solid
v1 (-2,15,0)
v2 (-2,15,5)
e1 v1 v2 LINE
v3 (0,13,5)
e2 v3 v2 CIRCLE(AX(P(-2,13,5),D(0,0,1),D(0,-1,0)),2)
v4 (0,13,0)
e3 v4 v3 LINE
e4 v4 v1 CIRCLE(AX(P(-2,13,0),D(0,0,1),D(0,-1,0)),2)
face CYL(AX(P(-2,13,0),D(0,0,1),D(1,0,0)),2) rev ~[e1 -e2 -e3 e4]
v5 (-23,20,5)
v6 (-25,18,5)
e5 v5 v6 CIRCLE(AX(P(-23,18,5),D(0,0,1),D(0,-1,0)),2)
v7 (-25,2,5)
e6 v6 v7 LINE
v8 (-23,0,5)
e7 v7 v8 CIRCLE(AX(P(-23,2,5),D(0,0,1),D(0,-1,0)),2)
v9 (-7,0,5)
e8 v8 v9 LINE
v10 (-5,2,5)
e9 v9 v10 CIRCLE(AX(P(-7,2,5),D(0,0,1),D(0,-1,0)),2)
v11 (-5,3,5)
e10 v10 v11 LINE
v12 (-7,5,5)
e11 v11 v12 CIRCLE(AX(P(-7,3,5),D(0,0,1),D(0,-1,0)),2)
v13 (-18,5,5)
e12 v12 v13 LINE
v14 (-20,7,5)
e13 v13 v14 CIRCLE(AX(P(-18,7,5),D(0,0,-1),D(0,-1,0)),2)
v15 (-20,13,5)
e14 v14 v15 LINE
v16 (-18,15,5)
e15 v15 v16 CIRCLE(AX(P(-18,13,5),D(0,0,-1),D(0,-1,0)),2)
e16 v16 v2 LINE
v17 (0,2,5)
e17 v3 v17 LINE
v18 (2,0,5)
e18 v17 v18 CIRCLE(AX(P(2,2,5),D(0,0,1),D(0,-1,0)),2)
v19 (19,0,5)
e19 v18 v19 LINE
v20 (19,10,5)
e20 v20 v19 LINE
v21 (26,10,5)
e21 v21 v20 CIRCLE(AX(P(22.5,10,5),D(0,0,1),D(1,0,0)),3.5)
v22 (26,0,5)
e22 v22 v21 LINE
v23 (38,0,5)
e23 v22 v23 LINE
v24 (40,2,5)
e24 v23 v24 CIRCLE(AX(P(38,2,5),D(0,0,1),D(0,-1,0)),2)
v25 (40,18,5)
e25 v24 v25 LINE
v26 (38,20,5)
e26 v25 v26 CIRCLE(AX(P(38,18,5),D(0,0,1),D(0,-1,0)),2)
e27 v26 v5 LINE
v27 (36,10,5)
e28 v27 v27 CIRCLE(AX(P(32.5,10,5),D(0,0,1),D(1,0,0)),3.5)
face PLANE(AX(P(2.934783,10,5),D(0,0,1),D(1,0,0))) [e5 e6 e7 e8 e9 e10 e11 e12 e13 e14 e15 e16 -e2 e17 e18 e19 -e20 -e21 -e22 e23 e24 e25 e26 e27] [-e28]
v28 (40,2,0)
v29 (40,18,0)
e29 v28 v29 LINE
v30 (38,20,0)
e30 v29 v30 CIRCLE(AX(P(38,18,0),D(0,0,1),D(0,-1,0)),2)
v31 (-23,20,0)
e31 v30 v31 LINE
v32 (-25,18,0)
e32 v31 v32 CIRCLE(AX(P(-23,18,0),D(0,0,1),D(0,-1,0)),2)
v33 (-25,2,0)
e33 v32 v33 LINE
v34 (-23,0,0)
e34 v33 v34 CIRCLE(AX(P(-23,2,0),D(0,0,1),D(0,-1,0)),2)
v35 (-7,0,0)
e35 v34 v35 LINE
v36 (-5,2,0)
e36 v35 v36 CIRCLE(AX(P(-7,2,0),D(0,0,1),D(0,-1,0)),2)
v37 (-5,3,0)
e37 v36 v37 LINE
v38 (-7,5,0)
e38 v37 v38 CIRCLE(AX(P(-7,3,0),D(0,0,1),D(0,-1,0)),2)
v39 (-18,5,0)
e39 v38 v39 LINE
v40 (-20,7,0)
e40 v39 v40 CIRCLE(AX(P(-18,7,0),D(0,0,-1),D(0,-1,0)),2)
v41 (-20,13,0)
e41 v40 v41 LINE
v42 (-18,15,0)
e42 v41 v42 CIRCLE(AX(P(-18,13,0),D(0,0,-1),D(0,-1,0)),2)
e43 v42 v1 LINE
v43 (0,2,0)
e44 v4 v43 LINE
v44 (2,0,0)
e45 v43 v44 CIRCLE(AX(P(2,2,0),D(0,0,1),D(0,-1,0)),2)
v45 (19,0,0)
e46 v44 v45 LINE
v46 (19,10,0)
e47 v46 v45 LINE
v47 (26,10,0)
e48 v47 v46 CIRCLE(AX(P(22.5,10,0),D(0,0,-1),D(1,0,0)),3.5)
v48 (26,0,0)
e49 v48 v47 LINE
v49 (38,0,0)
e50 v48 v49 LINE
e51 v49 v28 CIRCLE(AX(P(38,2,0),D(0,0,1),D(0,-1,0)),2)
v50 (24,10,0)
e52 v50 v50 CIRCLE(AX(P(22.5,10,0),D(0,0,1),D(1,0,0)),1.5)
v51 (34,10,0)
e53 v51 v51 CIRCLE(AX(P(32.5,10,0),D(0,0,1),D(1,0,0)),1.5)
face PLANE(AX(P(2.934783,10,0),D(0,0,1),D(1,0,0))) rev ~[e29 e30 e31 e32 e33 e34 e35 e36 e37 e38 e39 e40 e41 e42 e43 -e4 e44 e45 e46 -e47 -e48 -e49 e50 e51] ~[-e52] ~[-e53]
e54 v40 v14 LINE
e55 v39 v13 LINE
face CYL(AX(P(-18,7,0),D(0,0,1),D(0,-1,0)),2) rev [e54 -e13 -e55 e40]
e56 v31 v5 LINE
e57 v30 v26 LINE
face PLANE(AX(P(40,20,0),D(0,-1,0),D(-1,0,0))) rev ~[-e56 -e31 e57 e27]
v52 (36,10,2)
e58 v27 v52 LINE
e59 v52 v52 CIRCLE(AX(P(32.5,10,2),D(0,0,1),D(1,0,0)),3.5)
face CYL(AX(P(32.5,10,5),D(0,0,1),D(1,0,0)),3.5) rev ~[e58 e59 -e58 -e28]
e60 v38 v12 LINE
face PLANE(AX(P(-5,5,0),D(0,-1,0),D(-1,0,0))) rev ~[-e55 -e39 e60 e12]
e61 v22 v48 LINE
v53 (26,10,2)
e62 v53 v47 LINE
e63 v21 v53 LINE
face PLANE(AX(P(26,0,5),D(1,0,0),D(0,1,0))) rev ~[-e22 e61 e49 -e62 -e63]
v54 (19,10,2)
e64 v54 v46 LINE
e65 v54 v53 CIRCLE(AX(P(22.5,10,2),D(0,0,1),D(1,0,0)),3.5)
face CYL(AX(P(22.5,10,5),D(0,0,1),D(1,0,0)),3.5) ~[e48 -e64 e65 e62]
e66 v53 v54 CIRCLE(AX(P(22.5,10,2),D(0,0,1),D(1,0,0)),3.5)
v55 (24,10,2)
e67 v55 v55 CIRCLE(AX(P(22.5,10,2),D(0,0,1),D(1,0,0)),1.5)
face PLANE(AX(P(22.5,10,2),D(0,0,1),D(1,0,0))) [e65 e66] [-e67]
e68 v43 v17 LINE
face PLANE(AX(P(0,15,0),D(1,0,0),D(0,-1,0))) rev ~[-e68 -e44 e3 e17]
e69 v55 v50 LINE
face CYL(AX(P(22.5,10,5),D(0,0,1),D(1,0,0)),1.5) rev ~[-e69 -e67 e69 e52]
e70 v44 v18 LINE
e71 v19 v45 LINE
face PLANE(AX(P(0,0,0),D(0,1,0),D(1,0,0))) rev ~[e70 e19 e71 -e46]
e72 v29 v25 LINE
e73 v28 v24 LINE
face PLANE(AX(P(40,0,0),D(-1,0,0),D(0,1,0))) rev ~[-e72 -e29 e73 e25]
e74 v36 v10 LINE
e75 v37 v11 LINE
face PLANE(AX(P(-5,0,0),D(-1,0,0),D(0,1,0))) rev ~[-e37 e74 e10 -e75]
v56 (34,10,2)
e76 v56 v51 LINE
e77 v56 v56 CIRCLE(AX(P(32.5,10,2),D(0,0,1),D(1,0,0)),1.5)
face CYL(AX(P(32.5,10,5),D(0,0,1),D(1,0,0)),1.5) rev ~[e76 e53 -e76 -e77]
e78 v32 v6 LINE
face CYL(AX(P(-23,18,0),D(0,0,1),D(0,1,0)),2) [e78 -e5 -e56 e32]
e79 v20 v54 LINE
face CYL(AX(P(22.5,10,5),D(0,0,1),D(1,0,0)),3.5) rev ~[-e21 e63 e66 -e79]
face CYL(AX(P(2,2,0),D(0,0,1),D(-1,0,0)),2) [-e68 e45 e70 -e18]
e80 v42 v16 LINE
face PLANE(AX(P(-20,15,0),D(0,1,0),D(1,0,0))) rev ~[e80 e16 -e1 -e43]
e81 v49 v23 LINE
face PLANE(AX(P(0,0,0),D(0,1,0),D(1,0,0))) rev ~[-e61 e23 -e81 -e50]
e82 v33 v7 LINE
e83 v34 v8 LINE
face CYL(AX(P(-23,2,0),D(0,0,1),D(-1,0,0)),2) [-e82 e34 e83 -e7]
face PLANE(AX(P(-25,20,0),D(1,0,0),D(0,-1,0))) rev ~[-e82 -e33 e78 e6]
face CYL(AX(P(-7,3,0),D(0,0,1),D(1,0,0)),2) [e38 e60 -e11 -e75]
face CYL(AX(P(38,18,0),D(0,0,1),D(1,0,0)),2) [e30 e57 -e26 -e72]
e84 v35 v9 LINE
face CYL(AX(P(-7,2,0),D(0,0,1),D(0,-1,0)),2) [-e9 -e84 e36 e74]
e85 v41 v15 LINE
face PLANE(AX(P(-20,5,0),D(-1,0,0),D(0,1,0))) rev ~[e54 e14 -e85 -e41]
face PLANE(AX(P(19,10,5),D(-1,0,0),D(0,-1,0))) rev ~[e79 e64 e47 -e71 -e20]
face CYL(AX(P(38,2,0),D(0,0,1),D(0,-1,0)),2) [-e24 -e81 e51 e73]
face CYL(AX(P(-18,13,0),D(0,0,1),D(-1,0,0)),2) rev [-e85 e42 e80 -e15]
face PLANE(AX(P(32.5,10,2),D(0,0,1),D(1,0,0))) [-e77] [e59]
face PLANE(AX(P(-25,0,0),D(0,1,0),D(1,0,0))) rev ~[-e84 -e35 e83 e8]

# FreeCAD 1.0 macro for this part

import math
import FreeCAD as App
import Part
import Sketcher
Q = App.Units.Quantity


def edges_at(feature, points):
    """Names of the edges that pass closest to the given points."""
    edges = feature.Shape.Edges
    near = lambda p: min(range(len(edges)), key=lambda i: edges[i].distToShape(Part.Vertex(*p))[0])
    return sorted({f"Edge{near(p) + 1}" for p in points})


def add_polygon(sketch, points):
    """Adds a closed chain of lines whose ends are joined by coincident constraints."""
    first, n = sketch.GeometryCount, len(points)
    for a, b in zip(points, points[1:] + points[:1]):
        sketch.addGeometry(Part.LineSegment(App.Vector(*a, 0), App.Vector(*b, 0)), False)
    for i in range(n):
        sketch.addConstraint(Sketcher.Constraint("Coincident", first + i, 2, first + (i + 1) % n, 1))

doc = App.newDocument("Part")
params = doc.addObject("Spreadsheet::Sheet", "Params")
for row, (alias, value) in enumerate([
    ("sketch1_width", "40 mm"),
    ("sketch1_width2", "65 mm"),
    ("sketch1_width3", "20 mm"),
    ("sketch1_height", "5 mm"),
    ("pad1_length", "5 mm"),
    ("fillet_radius", "2 mm"),
    ("sketch2_diameter", "3 mm"),
    ("sketch3_diameter", "7 mm"),
    ("sketch3_diameter2", "3 mm"),
    ("pocket2_length", "3 mm"),
    ("sketch4_radius", "3.5 mm"),
    ("sketch4_height", "10 mm"),
], start=1):
    params.set(f"A{row}", alias)
    params.set(f"B{row}", "=" + value)
    params.setAlias(f"B{row}", alias)

body = doc.addObject("PartDesign::Body", "Body")

# Sketch on XY plane
sketch1 = body.newObject("Sketcher::SketchObject", "Sketch")
sketch1.AttachmentSupport = (doc.getObject("XY_Plane"), [""])
sketch1.MapMode = "FlatFace"
add_polygon(sketch1, [(0, 15), (0, 0), (40, 0), (40, 20), (-25, 20), (-25, 0), (-5, 0), (-5, 5), (-20, 5), (-20, 15)])  # lines 0-9
sketch1.addConstraint(Sketcher.Constraint("Vertical", 0))
sketch1.addConstraint(Sketcher.Constraint("Horizontal", 1))
sketch1.addConstraint(Sketcher.Constraint("Vertical", 2))
sketch1.addConstraint(Sketcher.Constraint("Horizontal", 3))
sketch1.addConstraint(Sketcher.Constraint("Vertical", 4))
sketch1.addConstraint(Sketcher.Constraint("Horizontal", 5))
sketch1.addConstraint(Sketcher.Constraint("Vertical", 6))
sketch1.addConstraint(Sketcher.Constraint("Horizontal", 7))
sketch1.addConstraint(Sketcher.Constraint("Vertical", 8))
sketch1.addConstraint(Sketcher.Constraint("Horizontal", 9))
sketch1.addConstraint(Sketcher.Constraint("Coincident", 0, 2, -1, 1))
sketch1.addConstraint(Sketcher.Constraint("PointOnObject", 4, 2, -1))
sketch1.addConstraint(Sketcher.Constraint("Equal", 5, 9))
sketch1.addConstraint(Sketcher.Constraint("Equal", 7, 0))
sketch1.addConstraint(Sketcher.Constraint("Equal", 9, 2))
sketch1.addConstraint(Sketcher.Constraint("DistanceX", 1, 1, 1, 2, Q("40 mm")))
sketch1.addConstraint(Sketcher.Constraint("DistanceX", 3, 2, 3, 1, Q("65 mm")))
sketch1.addConstraint(Sketcher.Constraint("DistanceX", 5, 1, 5, 2, Q("20 mm")))
sketch1.addConstraint(Sketcher.Constraint("DistanceY", 6, 1, 6, 2, Q("5 mm")))
sketch1.setExpression("Constraints[25]", "Params.sketch1_width")
sketch1.setExpression("Constraints[26]", "Params.sketch1_width2")
sketch1.setExpression("Constraints[27]", "Params.sketch1_width3")
sketch1.setExpression("Constraints[28]", "Params.sketch1_height")
pad1 = body.newObject("PartDesign::Pad", "Pad")
pad1.Profile = sketch1
pad1.setExpression("Length", "Params.pad1_length")
doc.recompute()

fillet = body.newObject("PartDesign::Fillet", "Fillet")
fillet.Base = (pad1, edges_at(pad1, [
    (-25, 0, 2.5),
    (-25, 20, 2.5),
    (40, 0, 2.5),
    (40, 20, 2.5),
    (0, 0, 2.5),
    (0, 15, 2.5),
    (-5, 0, 2.5),
    (-20, 5, 2.5),
    (-5, 5, 2.5),
    (-20, 15, 2.5),
]))
fillet.setExpression("Radius", "Params.fillet_radius")

# Sketch on XY plane
sketch2 = body.newObject("Sketcher::SketchObject", "Sketch001")
sketch2.AttachmentSupport = (doc.getObject("XY_Plane"), [""])
sketch2.MapMode = "FlatFace"
sketch2.AttachmentOffset = App.Placement(App.Vector(0, 0, 5), App.Rotation())
sketch2.addGeometry(Part.Circle(App.Vector(32.5, 10, 0), App.Vector(0, 0, 1), 1.5), False)
sketch2.addGeometry(Part.Circle(App.Vector(22.5, 10, 0), App.Vector(0, 0, 1), 1.5), False)
sketch2.addConstraint(Sketcher.Constraint("Equal", 0, 1))
sketch2.addConstraint(Sketcher.Constraint("Horizontal", 0, 3, 1, 3))
sketch2.addConstraint(Sketcher.Constraint("Diameter", 0, Q("3 mm")))
sketch2.addConstraint(Sketcher.Constraint("DistanceY", -1, 1, 0, 3, Q("10 mm")))
sketch2.addConstraint(Sketcher.Constraint("DistanceX", 1, 3, 0, 3, Q("10 mm")))
sketch2.addConstraint(Sketcher.Constraint("DistanceX", -1, 1, 0, 3, Q("32.5 mm")))
sketch2.setExpression("Constraints[2]", "Params.sketch2_diameter")
pocket1 = body.newObject("PartDesign::Pocket", "Pocket")
pocket1.Profile = sketch2
pocket1.Type = "ThroughAll"

# Sketch on XY plane
sketch3 = body.newObject("Sketcher::SketchObject", "Sketch002")
sketch3.AttachmentSupport = (doc.getObject("XY_Plane"), [""])
sketch3.MapMode = "FlatFace"
sketch3.AttachmentOffset = App.Placement(App.Vector(0, 0, 5), App.Rotation())
sketch3.addGeometry(Part.Circle(App.Vector(22.5, 10, 0), App.Vector(0, 0, 1), 3.5), False)
sketch3.addGeometry(Part.Circle(App.Vector(22.5, 10, 0), App.Vector(0, 0, 1), 1.5), False)
sketch3.addGeometry(Part.Circle(App.Vector(32.5, 10, 0), App.Vector(0, 0, 1), 3.5), False)
sketch3.addGeometry(Part.Circle(App.Vector(32.5, 10, 0), App.Vector(0, 0, 1), 1.5), False)
sketch3.addConstraint(Sketcher.Constraint("Coincident", 1, 3, 0, 3))
sketch3.addConstraint(Sketcher.Constraint("Coincident", 3, 3, 2, 3))
sketch3.addConstraint(Sketcher.Constraint("Equal", 0, 2))
sketch3.addConstraint(Sketcher.Constraint("Equal", 1, 3))
sketch3.addConstraint(Sketcher.Constraint("Horizontal", 1, 3, 2, 3))
sketch3.addConstraint(Sketcher.Constraint("Diameter", 0, Q("7 mm")))
sketch3.addConstraint(Sketcher.Constraint("Diameter", 1, Q("3 mm")))
sketch3.addConstraint(Sketcher.Constraint("DistanceY", -1, 1, 0, 3, Q("10 mm")))
sketch3.addConstraint(Sketcher.Constraint("DistanceX", 0, 3, 2, 3, Q("10 mm")))
sketch3.addConstraint(Sketcher.Constraint("DistanceX", -1, 1, 0, 3, Q("22.5 mm")))
sketch3.setExpression("Constraints[5]", "Params.sketch3_diameter")
sketch3.setExpression("Constraints[6]", "Params.sketch3_diameter2")
pocket2 = body.newObject("PartDesign::Pocket", "Pocket001")
pocket2.Profile = sketch3
pocket2.setExpression("Length", "Params.pocket2_length")

# Sketch on XY plane
sketch4 = body.newObject("Sketcher::SketchObject", "Sketch003")
sketch4.AttachmentSupport = (doc.getObject("XY_Plane"), [""])
sketch4.MapMode = "FlatFace"
sketch4.AttachmentOffset = App.Placement(App.Vector(0, 0, 5), App.Rotation())
sketch4.addGeometry(Part.ArcOfCircle(Part.Circle(App.Vector(22.5, 10, 0), App.Vector(0, 0, 1), 3.5), math.radians(180), math.radians(360)), False)
sketch4.addGeometry(Part.LineSegment(App.Vector(19, 10, 0), App.Vector(19, 0, 0)), False)
sketch4.addGeometry(Part.LineSegment(App.Vector(19, 0, 0), App.Vector(26, 0, 0)), False)
sketch4.addGeometry(Part.LineSegment(App.Vector(26, 0, 0), App.Vector(26, 10, 0)), False)
sketch4.addConstraint(Sketcher.Constraint("Tangent", 0, 1, 1, 1))
sketch4.addConstraint(Sketcher.Constraint("Coincident", 1, 2, 2, 1))
sketch4.addConstraint(Sketcher.Constraint("Coincident", 2, 2, 3, 1))
sketch4.addConstraint(Sketcher.Constraint("Tangent", 3, 2, 0, 2))
sketch4.addConstraint(Sketcher.Constraint("Vertical", 1))
sketch4.addConstraint(Sketcher.Constraint("Horizontal", 2))
sketch4.addConstraint(Sketcher.Constraint("Vertical", 3))
sketch4.addConstraint(Sketcher.Constraint("PointOnObject", 1, 2, -1))
sketch4.addConstraint(Sketcher.Constraint("Radius", 0, Q("3.5 mm")))
sketch4.addConstraint(Sketcher.Constraint("DistanceY", 1, 2, 1, 1, Q("10 mm")))
sketch4.addConstraint(Sketcher.Constraint("DistanceX", -1, 1, 0, 1, Q("19 mm")))
sketch4.setExpression("Constraints[8]", "Params.sketch4_radius")
sketch4.setExpression("Constraints[9]", "Params.sketch4_height")
pocket3 = body.newObject("PartDesign::Pocket", "Pocket002")
pocket3.Profile = sketch4
pocket3.Type = "ThroughAll"

doc.recompute()
